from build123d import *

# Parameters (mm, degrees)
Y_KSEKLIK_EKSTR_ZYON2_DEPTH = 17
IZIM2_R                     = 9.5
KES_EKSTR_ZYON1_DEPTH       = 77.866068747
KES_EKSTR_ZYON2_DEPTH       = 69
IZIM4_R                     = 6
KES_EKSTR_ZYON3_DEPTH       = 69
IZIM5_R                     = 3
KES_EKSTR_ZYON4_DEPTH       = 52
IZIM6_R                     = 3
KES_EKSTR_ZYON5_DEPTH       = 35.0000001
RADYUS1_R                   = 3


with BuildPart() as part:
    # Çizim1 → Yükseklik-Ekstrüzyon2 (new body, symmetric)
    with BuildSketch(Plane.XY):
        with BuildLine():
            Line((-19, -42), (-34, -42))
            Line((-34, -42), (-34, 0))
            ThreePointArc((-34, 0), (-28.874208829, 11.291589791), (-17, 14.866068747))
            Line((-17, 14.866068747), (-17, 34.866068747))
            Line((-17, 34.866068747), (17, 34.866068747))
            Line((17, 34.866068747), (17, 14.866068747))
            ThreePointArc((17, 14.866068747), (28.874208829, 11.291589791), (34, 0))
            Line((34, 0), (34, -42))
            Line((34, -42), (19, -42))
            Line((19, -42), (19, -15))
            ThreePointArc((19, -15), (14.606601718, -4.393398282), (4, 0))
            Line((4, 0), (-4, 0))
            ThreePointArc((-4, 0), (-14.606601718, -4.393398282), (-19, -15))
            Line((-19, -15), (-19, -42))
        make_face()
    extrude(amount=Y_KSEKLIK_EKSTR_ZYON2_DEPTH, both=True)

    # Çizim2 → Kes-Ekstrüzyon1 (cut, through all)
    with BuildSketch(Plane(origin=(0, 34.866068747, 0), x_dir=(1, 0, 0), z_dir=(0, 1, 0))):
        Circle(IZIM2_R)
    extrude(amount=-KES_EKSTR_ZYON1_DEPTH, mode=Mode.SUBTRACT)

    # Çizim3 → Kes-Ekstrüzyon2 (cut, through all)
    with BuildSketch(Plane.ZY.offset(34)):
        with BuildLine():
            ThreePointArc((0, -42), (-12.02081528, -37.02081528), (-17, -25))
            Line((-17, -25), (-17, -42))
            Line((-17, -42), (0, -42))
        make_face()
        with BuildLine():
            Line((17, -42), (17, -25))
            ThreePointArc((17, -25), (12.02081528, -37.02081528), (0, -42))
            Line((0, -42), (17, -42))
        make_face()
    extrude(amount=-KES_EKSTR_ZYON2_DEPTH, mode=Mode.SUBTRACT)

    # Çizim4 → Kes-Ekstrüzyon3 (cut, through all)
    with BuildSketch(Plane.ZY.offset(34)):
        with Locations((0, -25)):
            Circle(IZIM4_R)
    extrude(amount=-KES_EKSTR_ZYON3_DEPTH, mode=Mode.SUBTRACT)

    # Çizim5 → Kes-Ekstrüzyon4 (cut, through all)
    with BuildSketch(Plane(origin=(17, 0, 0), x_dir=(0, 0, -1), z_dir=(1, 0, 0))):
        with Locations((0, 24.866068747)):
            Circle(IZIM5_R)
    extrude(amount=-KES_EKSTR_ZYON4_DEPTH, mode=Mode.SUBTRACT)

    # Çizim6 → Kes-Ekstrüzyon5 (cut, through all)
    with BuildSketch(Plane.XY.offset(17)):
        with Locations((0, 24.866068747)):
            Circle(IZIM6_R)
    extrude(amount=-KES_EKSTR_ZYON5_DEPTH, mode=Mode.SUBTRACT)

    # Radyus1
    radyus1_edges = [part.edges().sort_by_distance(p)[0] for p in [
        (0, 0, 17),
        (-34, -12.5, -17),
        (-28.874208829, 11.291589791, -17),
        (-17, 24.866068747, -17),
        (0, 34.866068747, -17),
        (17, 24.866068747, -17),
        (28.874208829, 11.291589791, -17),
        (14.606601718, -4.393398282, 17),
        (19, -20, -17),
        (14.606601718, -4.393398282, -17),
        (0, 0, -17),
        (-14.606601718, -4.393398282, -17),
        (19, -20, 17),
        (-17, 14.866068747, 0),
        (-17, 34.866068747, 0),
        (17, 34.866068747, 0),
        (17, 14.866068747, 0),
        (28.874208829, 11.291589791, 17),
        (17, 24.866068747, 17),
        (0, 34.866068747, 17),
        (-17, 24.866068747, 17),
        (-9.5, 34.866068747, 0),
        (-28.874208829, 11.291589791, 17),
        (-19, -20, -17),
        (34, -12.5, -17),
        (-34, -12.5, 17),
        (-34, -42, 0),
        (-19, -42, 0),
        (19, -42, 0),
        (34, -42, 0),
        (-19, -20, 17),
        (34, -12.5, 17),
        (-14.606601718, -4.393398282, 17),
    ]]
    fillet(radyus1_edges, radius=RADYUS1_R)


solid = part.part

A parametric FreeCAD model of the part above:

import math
import FreeCAD as App
import Part
import Sketcher
from FreeCAD import Vector


def edges_at(feature, points):
    """Names of the edges that pass closest to the given points."""
    edges = feature.Shape.Edges
    near = lambda p: min(range(len(edges)), key=lambda i: edges[i].distToShape(Part.Vertex(*p))[0])
    return sorted({f"Edge{near(p) + 1}" for p in points})

doc = App.newDocument("Part")
body = doc.addObject("PartDesign::Body", "Body")

# Sketch on XY plane
sketch1 = body.newObject("Sketcher::SketchObject", "Sketch")
sketch1.AttachmentSupport = (doc.getObject("XY_Plane"), [""])
sketch1.MapMode = "FlatFace"
sketch1.addGeometry(Part.LineSegment(Vector(-34, -42, 0), Vector(-19, -42, 0)), False)
sketch1.addGeometry(Part.LineSegment(Vector(-19, -42, 0), Vector(-19, -15, 0)), False)
sketch1.addGeometry(Part.ArcOfCircle(Part.Circle(Vector(-4, -15, 0), Vector(0, 0, 1), 15), math.radians(90), math.radians(180)), False)
sketch1.addGeometry(Part.LineSegment(Vector(-4, 0, 0), Vector(4, 0, 0)), False)
sketch1.addGeometry(Part.ArcOfCircle(Part.Circle(Vector(4, -15, 0), Vector(0, 0, 1), 15), math.radians(0), math.radians(90)), False)
sketch1.addGeometry(Part.LineSegment(Vector(19, -15, 0), Vector(19, -42, 0)), False)
sketch1.addGeometry(Part.LineSegment(Vector(19, -42, 0), Vector(34, -42, 0)), False)
sketch1.addGeometry(Part.LineSegment(Vector(34, -42, 0), Vector(34, 0, 0)), False)
sketch1.addGeometry(Part.ArcOfCircle(Part.Circle(Vector(19, 0, 0), Vector(0, 0, 1), 15), math.radians(0), math.radians(98)), False)
sketch1.addGeometry(Part.LineSegment(Vector(17, 15, 0), Vector(17, 35, 0)), False)
sketch1.addGeometry(Part.LineSegment(Vector(17, 35, 0), Vector(-17, 35, 0)), False)
sketch1.addGeometry(Part.LineSegment(Vector(-17, 35, 0), Vector(-17, 15, 0)), False)
sketch1.addGeometry(Part.ArcOfCircle(Part.Circle(Vector(-19, 0, 0), Vector(0, 0, 1), 15), math.radians(82), math.radians(180)), False)
sketch1.addGeometry(Part.LineSegment(Vector(-34, 0, 0), Vector(-34, -42, 0)), False)
sketch1.addConstraint(Sketcher.Constraint("Coincident", 0, 2, 1, 1))
sketch1.addConstraint(Sketcher.Constraint("Tangent", 1, 2, 2, 2))
sketch1.addConstraint(Sketcher.Constraint("Tangent", 2, 1, 3, 1))
sketch1.addConstraint(Sketcher.Constraint("Tangent", 3, 2, 4, 2))
sketch1.addConstraint(Sketcher.Constraint("Tangent", 4, 1, 5, 1))
sketch1.addConstraint(Sketcher.Constraint("Coincident", 5, 2, 6, 1))
sketch1.addConstraint(Sketcher.Constraint("Coincident", 6, 2, 7, 1))
sketch1.addConstraint(Sketcher.Constraint("Tangent", 7, 2, 8, 1))
sketch1.addConstraint(Sketcher.Constraint("Coincident", 8, 2, 9, 1))
sketch1.addConstraint(Sketcher.Constraint("Coincident", 9, 2, 10, 1))
sketch1.addConstraint(Sketcher.Constraint("Coincident", 10, 2, 11, 1))
sketch1.addConstraint(Sketcher.Constraint("Coincident", 11, 2, 12, 1))
sketch1.addConstraint(Sketcher.Constraint("Tangent", 12, 2, 13, 1))
sketch1.addConstraint(Sketcher.Constraint("Coincident", 13, 2, 0, 1))
sketch1.addConstraint(Sketcher.Constraint("Horizontal", 0))
sketch1.addConstraint(Sketcher.Constraint("Vertical", 1))
sketch1.addConstraint(Sketcher.Constraint("Horizontal", 3))
sketch1.addConstraint(Sketcher.Constraint("Vertical", 5))
sketch1.addConstraint(Sketcher.Constraint("Horizontal", 6))
sketch1.addConstraint(Sketcher.Constraint("Vertical", 7))
sketch1.addConstraint(Sketcher.Constraint("Vertical", 9))
sketch1.addConstraint(Sketcher.Constraint("Horizontal", 10))
sketch1.addConstraint(Sketcher.Constraint("Vertical", 11))
sketch1.addConstraint(Sketcher.Constraint("Vertical", 13))
sketch1.addConstraint(Sketcher.Constraint("Equal", 2, 4))
sketch1.addConstraint(Sketcher.Constraint("Equal", 4, 8))
sketch1.addConstraint(Sketcher.Constraint("Equal", 8, 12))
sketch1.addConstraint(Sketcher.Constraint("Symmetric", 8, 3, 12, 3, -1, 1))
sketch1.addConstraint(Sketcher.Constraint("Symmetric", 2, 1, 3, 2, -1, 1))
sketch1.addConstraint(Sketcher.Constraint("Symmetric", 8, 2, 11, 2, -2))
sketch1.addConstraint(Sketcher.Constraint("Horizontal", 0, 2, 5, 2))
sketch1.addConstraint(Sketcher.Constraint("Vertical", 12, 3, 0, 2))
sketch1.addConstraint(Sketcher.Constraint("Radius", 2, 15.0))
sketch1.addConstraint(Sketcher.Constraint("DistanceX", 3, 1, 3, 2, 8.0))
sketch1.addConstraint(Sketcher.Constraint("DistanceX", 10, 2, 10, 1, 34.0))
sketch1.addConstraint(Sketcher.Constraint("DistanceY", 1, 1, 1, 2, 27.0))
sketch1.addConstraint(Sketcher.Constraint("DistanceY", 9, 1, 9, 2, 20.0))
pad1 = body.newObject("PartDesign::Pad", "Pad")
pad1.Profile = sketch1
pad1.Length = 34
pad1.Midplane = True

# Sketch on XZ plane
sketch2 = body.newObject("Sketcher::SketchObject", "Sketch001")
sketch2.AttachmentSupport = (doc.getObject("XZ_Plane"), [""])
sketch2.MapMode = "FlatFace"
sketch2.AttachmentOffset = App.Placement(Vector(0, 0, -34.866069), App.Rotation())
sketch2.addGeometry(Part.Circle(Vector(0, 0, 0), Vector(0, 0, 1), 10), False)
sketch2.addConstraint(Sketcher.Constraint("Coincident", 0, 3, -1, 1))
sketch2.addConstraint(Sketcher.Constraint("Diameter", 0, 19.0))
pocket1 = body.newObject("PartDesign::Pocket", "Pocket")
pocket1.Profile = sketch2
pocket1.Type = "ThroughAll"
pocket1.Reversed = True

# Sketch on YZ plane
sketch3 = body.newObject("Sketcher::SketchObject", "Sketch002")
sketch3.AttachmentSupport = (doc.getObject("YZ_Plane"), [""])
sketch3.MapMode = "FlatFace"
sketch3.AttachmentOffset = App.Placement(Vector(0, 0, -34), App.Rotation())
sketch3.addGeometry(Part.ArcOfCircle(Part.Circle(Vector(-25, 0, 0), Vector(0, 0, 1), 17), math.radians(-180), math.radians(-90)), False)
sketch3.addGeometry(Part.LineSegment(Vector(-25, -17, 0), Vector(-42, -17, 0)), False)
sketch3.addGeometry(Part.LineSegment(Vector(-42, -17, 0), Vector(-42, 0, 0)), False)
sketch3.addGeometry(Part.LineSegment(Vector(-42, 17, 0), Vector(-25, 17, 0)), False)
sketch3.addGeometry(Part.ArcOfCircle(Part.Circle(Vector(-25, 0, 0), Vector(0, 0, 1), 17), math.radians(90), math.radians(180)), False)
sketch3.addGeometry(Part.LineSegment(Vector(-42, 0, 0), Vector(-42, 17, 0)), False)
sketch3.addConstraint(Sketcher.Constraint("Tangent", 0, 2, 1, 1))
sketch3.addConstraint(Sketcher.Constraint("Coincident", 1, 2, 2, 1))
sketch3.addConstraint(Sketcher.Constraint("Tangent", 2, 2, 0, 1))
sketch3.addConstraint(Sketcher.Constraint("Tangent", 3, 2, 4, 1))
sketch3.addConstraint(Sketcher.Constraint("Tangent", 4, 2, 5, 1))
sketch3.addConstraint(Sketcher.Constraint("Coincident", 5, 2, 3, 1))
sketch3.addConstraint(Sketcher.Constraint("Horizontal", 1))
sketch3.addConstraint(Sketcher.Constraint("Vertical", 2))
sketch3.addConstraint(Sketcher.Constraint("Horizontal", 3))
sketch3.addConstraint(Sketcher.Constraint("Vertical", 5))
sketch3.addConstraint(Sketcher.Constraint("Coincident", 4, 3, 0, 3))
sketch3.addConstraint(Sketcher.Constraint("Equal", 0, 4))
sketch3.addConstraint(Sketcher.Constraint("PointOnObject", 0, 3, -1))
sketch3.addConstraint(Sketcher.Constraint("Radius", 0, 17.0))
sketch3.addConstraint(Sketcher.Constraint("DistanceX", 0, 3, -1, 1, 25.0))
pocket2 = body.newObject("PartDesign::Pocket", "Pocket001")
pocket2.Profile = sketch3
pocket2.Type = "ThroughAll"
pocket2.Reversed = True

# Sketch on YZ plane
sketch4 = body.newObject("Sketcher::SketchObject", "Sketch003")
sketch4.AttachmentSupport = (doc.getObject("YZ_Plane"), [""])
sketch4.MapMode = "FlatFace"
sketch4.AttachmentOffset = App.Placement(Vector(0, 0, -34), App.Rotation())
sketch4.addGeometry(Part.Circle(Vector(-25, 0, 0), Vector(0, 0, 1), 6), False)
sketch4.addConstraint(Sketcher.Constraint("PointOnObject", 0, 3, -1))
sketch4.addConstraint(Sketcher.Constraint("Diameter", 0, 12.0))
sketch4.addConstraint(Sketcher.Constraint("DistanceX", 0, 3, -1, 1, 25.0))
pocket3 = body.newObject("PartDesign::Pocket", "Pocket002")
pocket3.Profile = sketch4
pocket3.Type = "ThroughAll"
pocket3.Reversed = True

# Sketch on YZ plane
sketch5 = body.newObject("Sketcher::SketchObject", "Sketch004")
sketch5.AttachmentSupport = (doc.getObject("YZ_Plane"), [""])
sketch5.MapMode = "FlatFace"
sketch5.AttachmentOffset = App.Placement(Vector(0, 0, 17), App.Rotation())
sketch5.addGeometry(Part.Circle(Vector(24.9, 0, 0), Vector(0, 0, 1), 3), False)
sketch5.addConstraint(Sketcher.Constraint("PointOnObject", 0, 3, -1))
sketch5.addConstraint(Sketcher.Constraint("Diameter", 0, 6.0))
sketch5.addConstraint(Sketcher.Constraint("DistanceX", -1, 1, 0, 3, 24.866069))
pocket4 = body.newObject("PartDesign::Pocket", "Pocket003")
pocket4.Profile = sketch5
pocket4.Type = "ThroughAll"

# Sketch on XY plane
sketch6 = body.newObject("Sketcher::SketchObject", "Sketch005")
sketch6.AttachmentSupport = (doc.getObject("XY_Plane"), [""])
sketch6.MapMode = "FlatFace"
sketch6.AttachmentOffset = App.Placement(Vector(0, 0, 17), App.Rotation())
sketch6.addGeometry(Part.Circle(Vector(0, 24.9, 0), Vector(0, 0, 1), 3), False)
sketch6.addConstraint(Sketcher.Constraint("PointOnObject", 0, 3, -2))
sketch6.addConstraint(Sketcher.Constraint("Diameter", 0, 6.0))
sketch6.addConstraint(Sketcher.Constraint("DistanceY", -1, 1, 0, 3, 24.866069))
pocket5 = body.newObject("PartDesign::Pocket", "Pocket004")
pocket5.Profile = sketch6
pocket5.Type = "ThroughAll"
doc.recompute()

fillet = body.newObject("PartDesign::Fillet", "Fillet")
fillet.Base = (pocket5, edges_at(pocket5, [
    (0, 0, 17),
    (-34, -12.5, -17),
    (-28.874, 11.292, -17),
    (-17, 24.866, -17),
    (0, 34.866, -17),
    (17, 24.866, -17),
    (28.874, 11.292, -17),
    (14.607, -4.393, 17),
    (19, -20, -17),
    (14.607, -4.393, -17),
    (0, 0, -17),
    (-14.607, -4.393, -17),
    (19, -20, 17),
    (-17, 14.866, 0),
    (-17, 34.866, 0),
    (17, 34.866, 0),
    (17, 14.866, 0),
    (28.874, 11.292, 17),
    (17, 24.866, 17),
    (0, 34.866, 17),
    (-17, 24.866, 17),
    (-9.5, 34.866, 0),
    (-28.874, 11.292, 17),
    (-19, -20, -17),
    (34, -12.5, -17),
    (-34, -12.5, 17),
    (-34, -37.021, -12.021),
    (-19, -37.021, -12.021),
    (19, -37.021, -12.021),
    (34, -37.021, -12.021),
    (-19, -20, 17),
    (34, -12.5, 17),
    (-14.607, -4.393, 17),
]))
fillet.Radius = 3

doc.recompute()
